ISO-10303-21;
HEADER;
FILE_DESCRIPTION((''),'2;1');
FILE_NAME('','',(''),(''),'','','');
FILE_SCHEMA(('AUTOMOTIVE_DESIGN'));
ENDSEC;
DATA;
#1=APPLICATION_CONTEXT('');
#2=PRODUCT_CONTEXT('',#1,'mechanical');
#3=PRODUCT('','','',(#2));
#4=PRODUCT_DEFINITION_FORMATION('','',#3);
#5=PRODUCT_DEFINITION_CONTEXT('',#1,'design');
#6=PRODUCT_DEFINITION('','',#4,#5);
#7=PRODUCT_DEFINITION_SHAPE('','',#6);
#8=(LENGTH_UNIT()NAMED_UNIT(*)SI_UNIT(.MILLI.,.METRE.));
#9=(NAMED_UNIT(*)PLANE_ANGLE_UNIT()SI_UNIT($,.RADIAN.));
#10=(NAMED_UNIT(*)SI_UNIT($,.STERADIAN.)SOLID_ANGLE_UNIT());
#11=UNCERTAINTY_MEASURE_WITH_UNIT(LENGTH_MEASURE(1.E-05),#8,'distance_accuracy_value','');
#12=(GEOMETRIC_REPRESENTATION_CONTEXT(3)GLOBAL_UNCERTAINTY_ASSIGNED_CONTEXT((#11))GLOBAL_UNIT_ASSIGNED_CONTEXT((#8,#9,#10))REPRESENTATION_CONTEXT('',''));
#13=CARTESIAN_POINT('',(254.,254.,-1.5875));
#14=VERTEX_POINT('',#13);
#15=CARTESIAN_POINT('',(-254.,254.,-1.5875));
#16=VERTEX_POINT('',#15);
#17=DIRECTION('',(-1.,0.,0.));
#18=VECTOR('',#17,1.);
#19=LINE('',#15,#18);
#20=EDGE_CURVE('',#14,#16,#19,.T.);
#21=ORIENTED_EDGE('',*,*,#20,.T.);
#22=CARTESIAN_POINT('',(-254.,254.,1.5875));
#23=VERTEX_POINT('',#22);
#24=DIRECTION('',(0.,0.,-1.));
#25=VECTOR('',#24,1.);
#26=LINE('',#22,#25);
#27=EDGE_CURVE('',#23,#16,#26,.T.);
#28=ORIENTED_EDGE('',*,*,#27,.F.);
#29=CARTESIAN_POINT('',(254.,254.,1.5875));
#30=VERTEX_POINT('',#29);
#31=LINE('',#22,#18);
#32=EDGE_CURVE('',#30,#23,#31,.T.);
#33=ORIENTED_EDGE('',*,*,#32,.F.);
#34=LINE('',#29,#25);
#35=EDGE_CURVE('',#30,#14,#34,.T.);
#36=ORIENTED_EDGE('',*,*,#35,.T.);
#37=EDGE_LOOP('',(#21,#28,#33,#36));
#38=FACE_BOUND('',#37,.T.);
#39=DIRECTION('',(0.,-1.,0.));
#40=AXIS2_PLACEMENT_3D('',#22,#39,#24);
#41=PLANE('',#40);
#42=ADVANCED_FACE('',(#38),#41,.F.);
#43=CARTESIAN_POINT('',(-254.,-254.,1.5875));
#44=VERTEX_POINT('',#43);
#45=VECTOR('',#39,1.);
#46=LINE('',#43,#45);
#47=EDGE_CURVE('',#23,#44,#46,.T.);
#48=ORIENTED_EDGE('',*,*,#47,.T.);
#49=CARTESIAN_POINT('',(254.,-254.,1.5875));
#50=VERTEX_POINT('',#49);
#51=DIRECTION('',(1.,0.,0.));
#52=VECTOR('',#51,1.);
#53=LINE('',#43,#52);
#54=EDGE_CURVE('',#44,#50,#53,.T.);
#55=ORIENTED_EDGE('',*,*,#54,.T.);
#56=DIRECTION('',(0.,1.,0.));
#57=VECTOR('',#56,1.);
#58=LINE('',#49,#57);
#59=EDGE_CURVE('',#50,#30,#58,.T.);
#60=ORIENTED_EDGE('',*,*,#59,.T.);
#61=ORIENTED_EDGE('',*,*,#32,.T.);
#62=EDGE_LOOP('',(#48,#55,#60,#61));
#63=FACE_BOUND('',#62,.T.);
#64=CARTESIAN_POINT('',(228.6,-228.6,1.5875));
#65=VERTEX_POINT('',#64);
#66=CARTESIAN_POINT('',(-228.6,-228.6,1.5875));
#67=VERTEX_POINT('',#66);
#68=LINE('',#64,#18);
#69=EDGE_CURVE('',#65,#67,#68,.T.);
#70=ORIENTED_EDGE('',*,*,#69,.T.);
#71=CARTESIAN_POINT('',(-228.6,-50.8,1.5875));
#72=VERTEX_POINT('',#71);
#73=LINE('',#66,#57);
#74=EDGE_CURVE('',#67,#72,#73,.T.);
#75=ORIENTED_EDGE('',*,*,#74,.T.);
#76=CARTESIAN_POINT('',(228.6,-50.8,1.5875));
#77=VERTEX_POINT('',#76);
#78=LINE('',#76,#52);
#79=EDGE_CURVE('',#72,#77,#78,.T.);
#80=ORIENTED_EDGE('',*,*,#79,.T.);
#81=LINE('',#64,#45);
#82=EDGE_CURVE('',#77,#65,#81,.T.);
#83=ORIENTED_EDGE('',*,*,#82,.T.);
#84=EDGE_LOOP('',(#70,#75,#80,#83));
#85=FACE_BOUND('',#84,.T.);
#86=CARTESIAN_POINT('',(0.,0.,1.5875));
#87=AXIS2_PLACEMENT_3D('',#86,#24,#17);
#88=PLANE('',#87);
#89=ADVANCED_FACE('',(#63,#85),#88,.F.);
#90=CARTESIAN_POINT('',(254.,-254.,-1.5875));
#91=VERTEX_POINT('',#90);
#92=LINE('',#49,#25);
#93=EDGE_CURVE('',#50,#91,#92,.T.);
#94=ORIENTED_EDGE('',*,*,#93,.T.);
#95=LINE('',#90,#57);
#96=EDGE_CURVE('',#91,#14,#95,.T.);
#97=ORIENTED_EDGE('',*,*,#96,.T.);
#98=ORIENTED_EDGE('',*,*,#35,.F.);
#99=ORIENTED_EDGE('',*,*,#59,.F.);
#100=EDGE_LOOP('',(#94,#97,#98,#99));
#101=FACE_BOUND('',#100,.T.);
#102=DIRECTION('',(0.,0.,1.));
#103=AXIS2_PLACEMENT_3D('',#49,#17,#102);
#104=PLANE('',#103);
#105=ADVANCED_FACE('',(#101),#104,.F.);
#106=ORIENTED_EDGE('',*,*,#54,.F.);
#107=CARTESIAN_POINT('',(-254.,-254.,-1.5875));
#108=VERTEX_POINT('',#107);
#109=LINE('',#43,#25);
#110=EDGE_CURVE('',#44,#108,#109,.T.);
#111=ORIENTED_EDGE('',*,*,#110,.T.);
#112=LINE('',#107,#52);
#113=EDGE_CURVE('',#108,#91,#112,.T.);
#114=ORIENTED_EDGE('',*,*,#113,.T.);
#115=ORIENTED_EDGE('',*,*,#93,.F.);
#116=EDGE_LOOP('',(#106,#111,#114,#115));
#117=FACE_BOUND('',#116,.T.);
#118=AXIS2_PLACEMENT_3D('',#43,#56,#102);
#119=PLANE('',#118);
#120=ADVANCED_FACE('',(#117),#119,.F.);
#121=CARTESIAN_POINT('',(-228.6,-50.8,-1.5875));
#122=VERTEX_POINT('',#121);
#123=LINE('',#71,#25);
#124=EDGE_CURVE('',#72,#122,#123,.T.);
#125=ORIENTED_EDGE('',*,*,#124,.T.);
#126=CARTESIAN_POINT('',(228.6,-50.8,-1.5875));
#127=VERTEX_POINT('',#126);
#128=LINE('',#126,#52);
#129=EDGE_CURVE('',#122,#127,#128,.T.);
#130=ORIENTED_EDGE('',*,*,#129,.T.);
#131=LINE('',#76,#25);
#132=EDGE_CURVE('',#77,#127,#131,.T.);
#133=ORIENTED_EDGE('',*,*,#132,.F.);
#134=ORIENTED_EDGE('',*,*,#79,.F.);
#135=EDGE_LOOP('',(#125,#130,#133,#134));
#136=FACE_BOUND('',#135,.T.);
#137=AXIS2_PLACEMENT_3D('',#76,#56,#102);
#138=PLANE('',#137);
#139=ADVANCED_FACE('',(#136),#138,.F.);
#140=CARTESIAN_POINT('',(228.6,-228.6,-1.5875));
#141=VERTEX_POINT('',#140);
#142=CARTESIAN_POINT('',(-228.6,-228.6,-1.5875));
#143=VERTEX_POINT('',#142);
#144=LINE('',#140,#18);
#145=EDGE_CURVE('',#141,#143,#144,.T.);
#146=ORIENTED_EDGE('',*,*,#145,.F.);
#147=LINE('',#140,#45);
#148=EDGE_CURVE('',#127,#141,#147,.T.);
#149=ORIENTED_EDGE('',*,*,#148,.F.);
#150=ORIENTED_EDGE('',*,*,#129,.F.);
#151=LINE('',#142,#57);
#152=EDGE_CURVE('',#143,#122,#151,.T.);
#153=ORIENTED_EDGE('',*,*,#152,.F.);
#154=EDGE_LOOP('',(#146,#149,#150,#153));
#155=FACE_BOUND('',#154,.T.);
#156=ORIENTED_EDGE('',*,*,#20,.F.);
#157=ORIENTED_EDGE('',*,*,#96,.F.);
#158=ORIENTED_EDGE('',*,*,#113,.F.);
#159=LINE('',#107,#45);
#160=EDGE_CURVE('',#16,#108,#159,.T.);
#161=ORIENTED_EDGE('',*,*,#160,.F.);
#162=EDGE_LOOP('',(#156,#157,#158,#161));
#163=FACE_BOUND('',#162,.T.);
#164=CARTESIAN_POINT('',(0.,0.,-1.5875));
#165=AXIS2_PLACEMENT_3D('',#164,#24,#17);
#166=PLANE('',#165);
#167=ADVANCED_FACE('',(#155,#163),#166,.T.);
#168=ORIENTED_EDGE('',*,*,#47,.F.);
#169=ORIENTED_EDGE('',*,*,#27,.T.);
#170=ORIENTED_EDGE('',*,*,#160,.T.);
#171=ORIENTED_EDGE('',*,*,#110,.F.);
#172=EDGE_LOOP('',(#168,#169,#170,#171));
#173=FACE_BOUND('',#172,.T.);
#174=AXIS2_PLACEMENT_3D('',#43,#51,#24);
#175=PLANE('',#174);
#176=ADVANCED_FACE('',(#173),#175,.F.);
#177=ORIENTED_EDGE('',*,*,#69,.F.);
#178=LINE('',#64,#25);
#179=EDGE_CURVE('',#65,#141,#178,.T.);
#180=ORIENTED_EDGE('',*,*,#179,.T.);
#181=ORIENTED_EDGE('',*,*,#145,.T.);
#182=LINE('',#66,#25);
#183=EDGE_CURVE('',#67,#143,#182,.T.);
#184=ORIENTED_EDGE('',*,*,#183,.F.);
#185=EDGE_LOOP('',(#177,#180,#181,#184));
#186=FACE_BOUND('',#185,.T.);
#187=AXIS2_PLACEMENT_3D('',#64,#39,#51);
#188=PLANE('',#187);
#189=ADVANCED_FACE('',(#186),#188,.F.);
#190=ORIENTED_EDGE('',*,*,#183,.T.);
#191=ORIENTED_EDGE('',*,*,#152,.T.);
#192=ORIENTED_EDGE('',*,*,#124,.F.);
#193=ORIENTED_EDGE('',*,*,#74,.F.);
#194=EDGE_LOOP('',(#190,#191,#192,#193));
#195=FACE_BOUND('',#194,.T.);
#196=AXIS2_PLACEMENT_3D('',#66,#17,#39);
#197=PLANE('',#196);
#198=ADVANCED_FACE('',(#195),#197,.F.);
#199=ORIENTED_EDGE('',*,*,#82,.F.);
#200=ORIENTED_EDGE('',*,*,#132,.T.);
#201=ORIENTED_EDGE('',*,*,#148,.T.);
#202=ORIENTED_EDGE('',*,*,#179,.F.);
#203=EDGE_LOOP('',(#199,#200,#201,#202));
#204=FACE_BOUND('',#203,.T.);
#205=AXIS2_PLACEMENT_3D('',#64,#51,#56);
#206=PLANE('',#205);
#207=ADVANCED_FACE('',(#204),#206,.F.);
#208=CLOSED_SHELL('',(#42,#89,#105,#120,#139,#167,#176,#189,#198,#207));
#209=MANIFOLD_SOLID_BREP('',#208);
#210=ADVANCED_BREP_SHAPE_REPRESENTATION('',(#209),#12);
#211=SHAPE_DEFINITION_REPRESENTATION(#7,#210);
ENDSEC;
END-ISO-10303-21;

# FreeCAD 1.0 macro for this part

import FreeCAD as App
import Part
import Sketcher
Q = App.Units.Quantity


def add_polygon(sketch, points):
    """Adds a closed chain of lines whose ends are joined by coincident constraints."""
    first, n = sketch.GeometryCount, len(points)
    for a, b in zip(points, points[1:] + points[:1]):
        sketch.addGeometry(Part.LineSegment(App.Vector(*a, 0), App.Vector(*b, 0)), False)
    for i in range(n):
        sketch.addConstraint(Sketcher.Constraint("Coincident", first + i, 2, first + (i + 1) % n, 1))

doc = App.newDocument("Part")
body = doc.addObject("PartDesign::Body", "Body")

# Sketch on XY plane
sketch1 = body.newObject("Sketcher::SketchObject", "Sketch")
sketch1.AttachmentSupport = (doc.getObject("XY_Plane"), [""])
sketch1.MapMode = "FlatFace"
add_polygon(sketch1, [(-254, 254), (-254, -254), (254, -254), (254, 254)])  # lines 0-3
sketch1.addConstraint([
    Sketcher.Constraint("Vertical", 0),
    Sketcher.Constraint("Horizontal", 1),
    Sketcher.Constraint("Vertical", 2),
    Sketcher.Constraint("Horizontal", 3),
    Sketcher.Constraint("Symmetric", 0, 2, 2, 2, -1, 1),
    Sketcher.Constraint("Equal", 3, 0),
    Sketcher.Constraint("DistanceX", 1, 1, 1, 2, Q("20 in")),
])
pad1 = body.newObject("PartDesign::Pad", "Pad")
pad1.Profile = sketch1
pad1.Length = Q("0.125 in")
pad1.Midplane = True

# Sketch on XY plane
sketch2 = body.newObject("Sketcher::SketchObject", "Sketch001")
sketch2.AttachmentSupport = (doc.getObject("XY_Plane"), [""])
sketch2.MapMode = "FlatFace"
sketch2.AttachmentOffset = App.Placement(App.Vector(0, 0, -0.0625 * 25.4), App.Rotation())
add_polygon(sketch2, [(229, -51), (229, -229), (-229, -229), (-229, -51)])  # lines 0-3
sketch2.addConstraint([
    Sketcher.Constraint("Vertical", 0),
    Sketcher.Constraint("Horizontal", 1),
    Sketcher.Constraint("Vertical", 2),
    Sketcher.Constraint("Horizontal", 3),
    Sketcher.Constraint("DistanceX", 1, 2, 1, 1, Q("18 in")),
    Sketcher.Constraint("DistanceY", 0, 2, 0, 1, Q("7 in")),
    Sketcher.Constraint("DistanceX", -1, 1, 0, 2, Q("9 in")),
    Sketcher.Constraint("DistanceY", 0, 2, -1, 1, Q("9 in")),
])
pocket1 = body.newObject("PartDesign::Pocket", "Pocket")
pocket1.Profile = sketch2
pocket1.Type = "ThroughAll"
pocket1.Reversed = True

doc.recompute()
